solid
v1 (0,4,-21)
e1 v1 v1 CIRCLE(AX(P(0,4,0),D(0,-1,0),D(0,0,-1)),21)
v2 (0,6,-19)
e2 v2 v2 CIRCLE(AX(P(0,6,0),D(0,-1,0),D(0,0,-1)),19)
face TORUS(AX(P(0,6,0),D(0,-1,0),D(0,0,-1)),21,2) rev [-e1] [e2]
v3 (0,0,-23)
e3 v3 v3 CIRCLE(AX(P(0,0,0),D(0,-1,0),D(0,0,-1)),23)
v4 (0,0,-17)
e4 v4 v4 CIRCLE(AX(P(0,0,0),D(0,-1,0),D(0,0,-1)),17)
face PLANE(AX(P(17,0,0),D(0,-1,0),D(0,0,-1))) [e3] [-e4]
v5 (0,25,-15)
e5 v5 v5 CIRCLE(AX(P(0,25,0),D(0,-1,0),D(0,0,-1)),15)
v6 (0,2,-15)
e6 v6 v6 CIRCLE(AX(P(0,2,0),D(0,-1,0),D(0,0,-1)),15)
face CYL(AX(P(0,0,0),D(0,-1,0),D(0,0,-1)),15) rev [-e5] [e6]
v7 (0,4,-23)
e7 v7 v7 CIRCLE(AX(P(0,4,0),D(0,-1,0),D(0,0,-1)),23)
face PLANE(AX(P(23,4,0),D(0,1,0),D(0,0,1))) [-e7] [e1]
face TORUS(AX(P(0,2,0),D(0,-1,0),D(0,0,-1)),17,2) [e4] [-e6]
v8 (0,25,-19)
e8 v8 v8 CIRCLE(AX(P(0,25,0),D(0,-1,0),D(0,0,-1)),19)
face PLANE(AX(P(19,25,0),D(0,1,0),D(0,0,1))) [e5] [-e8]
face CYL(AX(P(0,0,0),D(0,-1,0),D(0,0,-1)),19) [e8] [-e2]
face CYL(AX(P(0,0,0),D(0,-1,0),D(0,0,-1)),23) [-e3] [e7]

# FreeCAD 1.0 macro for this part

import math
import FreeCAD as App
import Part
import Sketcher
from FreeCAD import Vector

doc = App.newDocument("Part")
body = doc.addObject("PartDesign::Body", "Body")

sketch1 = body.newObject("Sketcher::SketchObject", "Sketch")
sketch1.AttachmentSupport = (doc.getObject("XY_Plane"), [""])
sketch1.MapMode = "FlatFace"
sketch1.addGeometry([
    Part.LineSegment(Vector(15, 25, 0), Vector(15, 2, 0)),
    Part.ArcOfCircle(Part.Circle(Vector(17, 2, 0), Vector(0, 0, 1), 2), math.radians(-180), math.radians(-90)),
    Part.LineSegment(Vector(17, 0, 0), Vector(23, 0, 0)),
    Part.LineSegment(Vector(23, 0, 0), Vector(23, 4, 0)),
    Part.LineSegment(Vector(23, 4, 0), Vector(21, 4, 0)),
    Part.ArcOfCircle(Part.Circle(Vector(21, 6, 0), Vector(0, 0, 1), 2), math.radians(-180), math.radians(-90)),
    Part.LineSegment(Vector(19, 6, 0), Vector(19, 25, 0)),
    Part.LineSegment(Vector(19, 25, 0), Vector(15, 25, 0)),
], False)
sketch1.addConstraint([
    Sketcher.Constraint("Tangent", 0, 2, 1, 1),
    Sketcher.Constraint("Tangent", 1, 2, 2, 1),
    Sketcher.Constraint("Coincident", 2, 2, 3, 1),
    Sketcher.Constraint("Coincident", 3, 2, 4, 1),
    Sketcher.Constraint("Tangent", 4, 2, 5, 2),
    Sketcher.Constraint("Tangent", 5, 1, 6, 1),
    Sketcher.Constraint("Coincident", 6, 2, 7, 1),
    Sketcher.Constraint("Coincident", 7, 2, 0, 1),
    Sketcher.Constraint("Vertical", 0),
    Sketcher.Constraint("Horizontal", 2),
    Sketcher.Constraint("Vertical", 3),
    Sketcher.Constraint("Horizontal", 4),
    Sketcher.Constraint("Vertical", 6),
    Sketcher.Constraint("Horizontal", 7),
    Sketcher.Constraint("Equal", 1, 5),
    Sketcher.Constraint("PointOnObject", 1, 2, -1),
    Sketcher.Constraint("Equal", 7, 3),
    Sketcher.Constraint("Radius", 1, 2.0),
    Sketcher.Constraint("DistanceX", 2, 1, 2, 2, 6.0),
    Sketcher.Constraint("DistanceX", 4, 2, 4, 1, 2.0),
    Sketcher.Constraint("DistanceY", 0, 2, 0, 1, 23.0),
    Sketcher.Constraint("DistanceX", -1, 1, 1, 3, 17.0),
])
revolution = body.newObject("PartDesign::Revolution", "Revolution")
revolution.Profile = sketch1
revolution.ReferenceAxis = (sketch1, ["V_Axis"])
revolution.Angle = 360

doc.recompute()
